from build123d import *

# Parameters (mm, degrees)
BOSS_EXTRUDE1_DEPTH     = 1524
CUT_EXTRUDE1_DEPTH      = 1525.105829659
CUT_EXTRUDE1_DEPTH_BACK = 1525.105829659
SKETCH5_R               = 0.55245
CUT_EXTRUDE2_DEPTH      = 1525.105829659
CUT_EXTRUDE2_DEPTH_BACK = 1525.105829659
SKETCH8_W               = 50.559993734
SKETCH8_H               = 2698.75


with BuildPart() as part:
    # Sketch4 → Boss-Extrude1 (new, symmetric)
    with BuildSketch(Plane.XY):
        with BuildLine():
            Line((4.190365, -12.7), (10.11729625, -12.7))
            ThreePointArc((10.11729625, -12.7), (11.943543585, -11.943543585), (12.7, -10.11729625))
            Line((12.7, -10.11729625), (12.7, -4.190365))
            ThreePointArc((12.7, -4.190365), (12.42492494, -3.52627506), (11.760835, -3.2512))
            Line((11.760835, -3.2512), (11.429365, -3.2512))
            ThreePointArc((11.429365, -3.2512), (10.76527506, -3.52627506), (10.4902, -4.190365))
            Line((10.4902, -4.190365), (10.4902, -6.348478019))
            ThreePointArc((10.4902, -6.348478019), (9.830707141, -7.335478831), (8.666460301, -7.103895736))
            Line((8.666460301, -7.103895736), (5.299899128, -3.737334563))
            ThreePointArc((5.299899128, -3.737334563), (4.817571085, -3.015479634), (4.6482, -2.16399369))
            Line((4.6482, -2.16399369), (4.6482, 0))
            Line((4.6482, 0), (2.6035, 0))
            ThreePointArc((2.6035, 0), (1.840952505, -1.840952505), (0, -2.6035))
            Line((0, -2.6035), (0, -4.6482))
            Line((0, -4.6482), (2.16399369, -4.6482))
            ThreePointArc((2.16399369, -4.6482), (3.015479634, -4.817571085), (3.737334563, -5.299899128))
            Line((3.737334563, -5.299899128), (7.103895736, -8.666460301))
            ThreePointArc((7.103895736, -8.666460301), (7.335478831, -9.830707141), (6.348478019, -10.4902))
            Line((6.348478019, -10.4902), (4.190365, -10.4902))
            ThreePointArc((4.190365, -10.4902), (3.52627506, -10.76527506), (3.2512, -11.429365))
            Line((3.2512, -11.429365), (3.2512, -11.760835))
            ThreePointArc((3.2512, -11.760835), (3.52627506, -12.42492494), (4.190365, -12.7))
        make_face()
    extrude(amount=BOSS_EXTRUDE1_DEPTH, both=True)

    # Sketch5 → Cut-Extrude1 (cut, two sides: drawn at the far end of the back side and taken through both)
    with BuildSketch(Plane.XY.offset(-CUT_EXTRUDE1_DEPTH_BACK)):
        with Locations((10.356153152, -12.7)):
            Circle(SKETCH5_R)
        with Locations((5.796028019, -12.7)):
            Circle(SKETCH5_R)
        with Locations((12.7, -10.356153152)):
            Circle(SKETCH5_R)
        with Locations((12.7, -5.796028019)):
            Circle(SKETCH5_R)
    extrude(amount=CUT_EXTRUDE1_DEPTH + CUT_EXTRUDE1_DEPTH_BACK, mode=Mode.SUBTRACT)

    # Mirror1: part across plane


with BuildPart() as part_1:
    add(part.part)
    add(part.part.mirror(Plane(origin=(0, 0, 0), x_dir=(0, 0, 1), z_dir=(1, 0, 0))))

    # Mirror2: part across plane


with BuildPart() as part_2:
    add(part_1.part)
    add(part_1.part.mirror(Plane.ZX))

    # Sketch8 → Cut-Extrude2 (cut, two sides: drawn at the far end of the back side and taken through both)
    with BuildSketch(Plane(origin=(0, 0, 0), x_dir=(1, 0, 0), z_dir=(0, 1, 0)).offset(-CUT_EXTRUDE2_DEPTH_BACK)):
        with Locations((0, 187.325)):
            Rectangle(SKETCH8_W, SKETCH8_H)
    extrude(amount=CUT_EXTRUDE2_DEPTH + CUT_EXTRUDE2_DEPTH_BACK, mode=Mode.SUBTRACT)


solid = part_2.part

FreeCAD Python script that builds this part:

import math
import FreeCAD as App
import Part
import Sketcher

V = App.Vector
Q = App.Units.Quantity


def add_polygon(sketch, points):
    """Adds a closed chain of lines whose ends are joined by coincident constraints."""
    first, n = sketch.GeometryCount, len(points)
    for a, b in zip(points, points[1:] + points[:1]):
        sketch.addGeometry(Part.LineSegment(App.Vector(*a, 0), App.Vector(*b, 0)), False)
    for i in range(n):
        sketch.addConstraint(Sketcher.Constraint("Coincident", first + i, 2, first + (i + 1) % n, 1))

doc = App.newDocument("Part")
body = doc.addObject("PartDesign::Body", "Body")

sketch1 = body.newObject("Sketcher::SketchObject", "Sketch")
sketch1.AttachmentSupport = (doc.getObject("XY_Plane"), [""])
sketch1.MapMode = "FlatFace"
sketch1.addGeometry(Part.LineSegment(V(4.19, -12.7, 0), V(10.12, -12.7, 0)), False)
sketch1.addGeometry(Part.ArcOfCircle(Part.Circle(V(10.12, -10.12, 0), V(0, 0, 1), 2.58), math.radians(-90), math.radians(0)), False)
sketch1.addGeometry(Part.LineSegment(V(12.7, -10.12, 0), V(12.7, -4.19, 0)), False)
sketch1.addGeometry(Part.ArcOfCircle(Part.Circle(V(11.76, -4.19, 0), V(0, 0, 1), 0.94), math.radians(0), math.radians(90)), False)
sketch1.addGeometry(Part.LineSegment(V(11.76, -3.25, 0), V(11.43, -3.25, 0)), False)
sketch1.addGeometry(Part.ArcOfCircle(Part.Circle(V(11.43, -4.19, 0), V(0, 0, 1), 0.94), math.radians(90), math.radians(180)), False)
sketch1.addGeometry(Part.LineSegment(V(10.49, -4.19, 0), V(10.49, -6.35, 0)), False)
sketch1.addGeometry(Part.ArcOfCircle(Part.Circle(V(9.42, -6.35, 0), V(0, 0, 1), 1.07), math.radians(-135), math.radians(0)), False)
sketch1.addGeometry(Part.LineSegment(V(8.67, -7.1, 0), V(5.3, -3.74, 0)), False)
sketch1.addGeometry(Part.ArcOfCircle(Part.Circle(V(6.87, -2.16, 0), V(0, 0, 1), 2.23), math.radians(-180), math.radians(-135)), False)
sketch1.addGeometry(Part.LineSegment(V(4.65, -2.16, 0), V(4.65, 0, 0)), False)
sketch1.addGeometry(Part.LineSegment(V(4.65, 0, 0), V(2.6, 0, 0)), False)
sketch1.addGeometry(Part.ArcOfCircle(Part.Circle(V(0, 0, 0), V(0, 0, 1), 2.6), math.radians(-90), math.radians(0)), False)
sketch1.addGeometry(Part.LineSegment(V(0, -2.6, 0), V(0, -4.65, 0)), False)
sketch1.addGeometry(Part.LineSegment(V(0, -4.65, 0), V(2.16, -4.65, 0)), False)
sketch1.addGeometry(Part.ArcOfCircle(Part.Circle(V(2.16, -6.87, 0), V(0, 0, 1), 2.23), math.radians(45), math.radians(90)), False)
sketch1.addGeometry(Part.LineSegment(V(3.74, -5.3, 0), V(7.1, -8.67, 0)), False)
sketch1.addGeometry(Part.ArcOfCircle(Part.Circle(V(6.35, -9.42, 0), V(0, 0, 1), 1.07), math.radians(-90), math.radians(45)), False)
sketch1.addGeometry(Part.LineSegment(V(6.35, -10.49, 0), V(4.19, -10.49, 0)), False)
sketch1.addGeometry(Part.ArcOfCircle(Part.Circle(V(4.19, -11.43, 0), V(0, 0, 1), 0.94), math.radians(90), math.radians(180)), False)
sketch1.addGeometry(Part.LineSegment(V(3.25, -11.43, 0), V(3.25, -11.76, 0)), False)
sketch1.addGeometry(Part.ArcOfCircle(Part.Circle(V(4.19, -11.76, 0), V(0, 0, 1), 0.94), math.radians(-180), math.radians(-90)), False)
sketch1.addConstraint(Sketcher.Constraint("Tangent", 0, 2, 1, 1))
sketch1.addConstraint(Sketcher.Constraint("Tangent", 1, 2, 2, 1))
sketch1.addConstraint(Sketcher.Constraint("Tangent", 2, 2, 3, 1))
sketch1.addConstraint(Sketcher.Constraint("Tangent", 3, 2, 4, 1))
sketch1.addConstraint(Sketcher.Constraint("Tangent", 4, 2, 5, 1))
sketch1.addConstraint(Sketcher.Constraint("Tangent", 5, 2, 6, 1))
sketch1.addConstraint(Sketcher.Constraint("Tangent", 6, 2, 7, 2))
sketch1.addConstraint(Sketcher.Constraint("Tangent", 7, 1, 8, 1))
sketch1.addConstraint(Sketcher.Constraint("Tangent", 8, 2, 9, 2))
sketch1.addConstraint(Sketcher.Constraint("Tangent", 9, 1, 10, 1))
sketch1.addConstraint(Sketcher.Constraint("Coincident", 10, 2, 11, 1))
sketch1.addConstraint(Sketcher.Constraint("Coincident", 11, 2, 12, 2))
sketch1.addConstraint(Sketcher.Constraint("Coincident", 12, 1, 13, 1))
sketch1.addConstraint(Sketcher.Constraint("Coincident", 13, 2, 14, 1))
sketch1.addConstraint(Sketcher.Constraint("Tangent", 14, 2, 15, 2))
sketch1.addConstraint(Sketcher.Constraint("Tangent", 15, 1, 16, 1))
sketch1.addConstraint(Sketcher.Constraint("Tangent", 16, 2, 17, 2))
sketch1.addConstraint(Sketcher.Constraint("Tangent", 17, 1, 18, 1))
sketch1.addConstraint(Sketcher.Constraint("Tangent", 18, 2, 19, 1))
sketch1.addConstraint(Sketcher.Constraint("Tangent", 19, 2, 20, 1))
sketch1.addConstraint(Sketcher.Constraint("Tangent", 20, 2, 21, 1))
sketch1.addConstraint(Sketcher.Constraint("Tangent", 21, 2, 0, 1))
sketch1.addConstraint(Sketcher.Constraint("Horizontal", 0))
sketch1.addConstraint(Sketcher.Constraint("Vertical", 2))
sketch1.addConstraint(Sketcher.Constraint("Horizontal", 4))
sketch1.addConstraint(Sketcher.Constraint("Vertical", 6))
sketch1.addConstraint(Sketcher.Constraint("Vertical", 10))
sketch1.addConstraint(Sketcher.Constraint("Horizontal", 11))
sketch1.addConstraint(Sketcher.Constraint("Vertical", 13))
sketch1.addConstraint(Sketcher.Constraint("Horizontal", 14))
sketch1.addConstraint(Sketcher.Constraint("Horizontal", 18))
sketch1.addConstraint(Sketcher.Constraint("Vertical", 20))
sketch1.addConstraint(Sketcher.Constraint("Coincident", 12, 3, -1, 1))
sketch1.addConstraint(Sketcher.Constraint("Equal", 3, 5))
sketch1.addConstraint(Sketcher.Constraint("Equal", 9, 15))
sketch1.addConstraint(Sketcher.Constraint("Equal", 7, 17))
sketch1.addConstraint(Sketcher.Constraint("Equal", 5, 19))
sketch1.addConstraint(Sketcher.Constraint("Equal", 19, 21))
sketch1.addConstraint(Sketcher.Constraint("PointOnObject", 10, 2, -1))
sketch1.addConstraint(Sketcher.Constraint("PointOnObject", 12, 1, -2))
sketch1.addConstraint(Sketcher.Constraint("Parallel", 8, 16))
sketch1.addConstraint(Sketcher.Constraint("Equal", 0, 2))
sketch1.addConstraint(Sketcher.Constraint("Equal", 18, 6))
sketch1.addConstraint(Sketcher.Constraint("Equal", 14, 10))
sketch1.addConstraint(Sketcher.Constraint("Equal", 11, 13))
sketch1.addConstraint(Sketcher.Constraint("Equal", 4, 20))
sketch1.addConstraint(Sketcher.Constraint("Equal", 8, 16))
sketch1.addConstraint(Sketcher.Constraint("DistanceY", 0, 2, -1, 1, Q("0.5 in")))
sketch1.addConstraint(Sketcher.Constraint("Radius", 9, Q("0.0876 in")))
sketch1.addConstraint(Sketcher.Constraint("Radius", 12, Q("0.1025 in")))
sketch1.addConstraint(Sketcher.Constraint("DistanceX", 9, 1, 5, 2, Q("0.23 in")))
sketch1.addConstraint(Sketcher.Constraint("DistanceX", 11, 2, 11, 1, Q("0.0805 in")))
sketch1.addConstraint(Sketcher.Constraint("DistanceY", 3, 2, -1, 1, Q("0.128 in")))
sketch1.addConstraint(Sketcher.Constraint("Radius", 7, 1.068322))
sketch1.addConstraint(Sketcher.Constraint("DistanceX", 17, 3, 7, 3, Q("0.121 in")))
sketch1.addConstraint(Sketcher.Constraint("Radius", 1, 2.582704))
sketch1.addConstraint(Sketcher.Constraint("Radius", 3, 0.939165))
pad1 = body.newObject("PartDesign::Pad", "Pad")
pad1.Profile = sketch1
pad1.Length = Q("120 in")
pad1.Midplane = True

sketch2 = body.newObject("Sketcher::SketchObject", "Sketch001")
sketch2.AttachmentSupport = (doc.getObject("XY_Plane"), [""])
sketch2.MapMode = "FlatFace"
sketch2.addGeometry(Part.Circle(V(10.4, -12.7, 0), V(0, 0, 1), 0.6), False)
sketch2.addGeometry(Part.Circle(V(5.8, -12.7, 0), V(0, 0, 1), 0.6), False)
sketch2.addGeometry(Part.Circle(V(12.7, -10.4, 0), V(0, 0, 1), 0.6), False)
sketch2.addGeometry(Part.Circle(V(12.7, -5.8, 0), V(0, 0, 1), 0.6), False)
sketch2.addConstraint(Sketcher.Constraint("Equal", 0, 1))
sketch2.addConstraint(Sketcher.Constraint("Equal", 1, 2))
sketch2.addConstraint(Sketcher.Constraint("Equal", 2, 3))
sketch2.addConstraint(Sketcher.Constraint("Horizontal", 0, 3, 1, 3))
sketch2.addConstraint(Sketcher.Constraint("Vertical", 2, 3, 3, 3))
sketch2.addConstraint(Sketcher.Constraint("Diameter", 0, Q("0.0435 in")))
sketch2.addConstraint(Sketcher.Constraint("DistanceY", 0, 3, -1, 1, Q("0.5 in")))
sketch2.addConstraint(Sketcher.Constraint("DistanceX", -1, 1, 2, 3, Q("0.5 in")))
sketch2.addConstraint(Sketcher.Constraint("DistanceX", -1, 1, 1, 3, 5.796028))
sketch2.addConstraint(Sketcher.Constraint("DistanceY", 3, 3, -1, 1, 5.796028))
sketch2.addConstraint(Sketcher.Constraint("DistanceX", -1, 1, 0, 3, 10.356153))
sketch2.addConstraint(Sketcher.Constraint("DistanceY", 2, 3, -1, 1, 10.356153))
pocket1 = body.newObject("PartDesign::Pocket", "Pocket")
pocket1.Profile = sketch2
pocket1.Type = "ThroughAll"
pocket1.Midplane = True
body2 = doc.addObject("PartDesign::Body", "Body001")
doc.recompute()

body2.BaseFeature = body
doc.recompute()

mirroring = doc.addObject("Part::Mirroring", "Mirroring")
mirroring.Source = body
mirroring.Base = V(0, 0, 0)
mirroring.Normal = V(1, 0, 0)
body3 = doc.addObject("PartDesign::Body", "Body002")
body3.BaseFeature = mirroring
boolean = body2.newObject("PartDesign::Boolean", "Boolean")
boolean.Type = "Fuse"
boolean.addObjects([body3])
doc.recompute()
body4 = doc.addObject("PartDesign::Body", "Body003")
doc.recompute()

body4.BaseFeature = body2
doc.recompute()

mirroring2 = doc.addObject("Part::Mirroring", "Mirroring001")
mirroring2.Source = body2
mirroring2.Base = V(0, 0, 0)
mirroring2.Normal = V(0, 1, 0)
body5 = doc.addObject("PartDesign::Body", "Body004")
body5.BaseFeature = mirroring2
boolean2 = body4.newObject("PartDesign::Boolean", "Boolean001")
boolean2.Type = "Fuse"
boolean2.addObjects([body5])
doc.recompute()

sketch3 = body4.newObject("Sketcher::SketchObject", "Sketch002")
sketch3.AttachmentSupport = (doc.getObject("XZ_Plane003"), [""])
sketch3.MapMode = "FlatFace"
add_polygon(sketch3, [(-25, -1537), (-25, 1162), (25, 1162), (25, -1537)])
sketch3.addConstraint(Sketcher.Constraint("Vertical", 0))
sketch3.addConstraint(Sketcher.Constraint("Horizontal", 1))
sketch3.addConstraint(Sketcher.Constraint("Vertical", 2))
sketch3.addConstraint(Sketcher.Constraint("Horizontal", 3))
sketch3.addConstraint(Sketcher.Constraint("DistanceY", 0, 1, 0, 2, Q("106.25 in")))
sketch3.addConstraint(Sketcher.Constraint("DistanceY", 2, 2, -1, 1, Q("60.5 in")))
sketch3.addConstraint(Sketcher.Constraint("DistanceX", 1, 1, 1, 2, 50.559994))
sketch3.addConstraint(Sketcher.Constraint("DistanceX", 0, 2, -1, 1, 25.279997))
pocket2 = body4.newObject("PartDesign::Pocket", "Pocket001")
pocket2.Profile = sketch3
pocket2.Type = "ThroughAll"
pocket2.Midplane = True
mirroring.Visibility = False
mirroring2.Visibility = False

doc.recompute()
